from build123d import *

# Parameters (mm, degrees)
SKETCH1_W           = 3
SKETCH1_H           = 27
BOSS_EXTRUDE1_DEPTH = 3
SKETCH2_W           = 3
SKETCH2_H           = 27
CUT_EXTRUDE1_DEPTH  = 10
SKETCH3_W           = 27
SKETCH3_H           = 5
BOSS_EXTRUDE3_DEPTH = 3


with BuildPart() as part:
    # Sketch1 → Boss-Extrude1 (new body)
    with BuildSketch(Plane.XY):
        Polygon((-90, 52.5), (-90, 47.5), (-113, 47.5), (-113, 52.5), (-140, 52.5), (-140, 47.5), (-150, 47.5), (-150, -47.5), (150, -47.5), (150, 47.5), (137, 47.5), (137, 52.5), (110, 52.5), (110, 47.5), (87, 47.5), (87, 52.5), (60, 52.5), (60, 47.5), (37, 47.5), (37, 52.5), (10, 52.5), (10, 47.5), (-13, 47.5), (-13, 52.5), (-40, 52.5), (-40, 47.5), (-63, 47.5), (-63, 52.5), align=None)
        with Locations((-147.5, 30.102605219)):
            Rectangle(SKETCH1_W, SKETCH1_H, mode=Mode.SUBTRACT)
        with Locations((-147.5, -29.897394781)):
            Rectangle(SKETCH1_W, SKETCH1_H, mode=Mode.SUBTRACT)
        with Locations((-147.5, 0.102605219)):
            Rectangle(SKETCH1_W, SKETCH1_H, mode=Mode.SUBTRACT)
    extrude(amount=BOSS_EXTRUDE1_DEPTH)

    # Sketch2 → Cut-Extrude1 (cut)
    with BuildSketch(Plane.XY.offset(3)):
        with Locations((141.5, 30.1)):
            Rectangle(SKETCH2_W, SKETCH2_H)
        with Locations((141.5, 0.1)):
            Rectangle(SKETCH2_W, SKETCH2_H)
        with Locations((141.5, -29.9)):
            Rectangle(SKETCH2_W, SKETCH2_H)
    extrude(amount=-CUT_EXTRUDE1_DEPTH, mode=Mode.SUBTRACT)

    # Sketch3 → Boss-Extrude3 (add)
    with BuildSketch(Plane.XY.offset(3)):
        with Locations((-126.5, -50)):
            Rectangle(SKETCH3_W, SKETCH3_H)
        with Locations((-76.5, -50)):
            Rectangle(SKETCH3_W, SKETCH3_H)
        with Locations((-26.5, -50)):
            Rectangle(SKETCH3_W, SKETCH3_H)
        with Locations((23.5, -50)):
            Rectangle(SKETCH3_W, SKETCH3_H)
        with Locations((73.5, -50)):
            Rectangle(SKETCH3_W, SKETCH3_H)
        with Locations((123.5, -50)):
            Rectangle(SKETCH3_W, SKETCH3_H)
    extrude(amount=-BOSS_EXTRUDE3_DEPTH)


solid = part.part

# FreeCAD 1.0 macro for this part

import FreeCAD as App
import Part
import Sketcher

V = App.Vector
Q = App.Units.Quantity

doc = App.newDocument("Part")
params = doc.addObject("Spreadsheet::Sheet", "Params")
for row, (alias, value) in enumerate([
    ("sketch1_width", "23 mm"),
    ("sketch1_width2", "27 mm"),
    ("sketch1_width3", "10 mm"),
    ("sketch1_width4", "300 mm"),
    ("sketch1_width5", "3 mm"),
    ("pad1_length", "3 mm"),
    ("sketch2_width", "3 mm"),
    ("sketch2_height", "27 mm"),
    ("pocket1_length", "10 mm"),
    ("sketch3_width", "27 mm"),
    ("sketch3_height", "5 mm"),
    ("pad2_length", "3 mm"),
], start=1):
    params.set(f"A{row}", alias)
    params.set(f"B{row}", "=" + value)
    params.setAlias(f"B{row}", alias)

body = doc.addObject("PartDesign::Body", "Body")

# Sketch on XY plane
sketch1 = body.newObject("Sketcher::SketchObject", "Sketch")
sketch1.AttachmentSupport = (doc.getObject("XY_Plane"), [""])
sketch1.MapMode = "FlatFace"
sketch1.addGeometry(Part.LineSegment(V(-90, 52.5, 0), V(-90, 47.5, 0)), False)
sketch1.addGeometry(Part.LineSegment(V(-90, 47.5, 0), V(-113, 47.5, 0)), False)
sketch1.addGeometry(Part.LineSegment(V(-113, 47.5, 0), V(-113, 52.5, 0)), False)
sketch1.addGeometry(Part.LineSegment(V(-113, 52.5, 0), V(-140, 52.5, 0)), False)
sketch1.addGeometry(Part.LineSegment(V(-140, 52.5, 0), V(-140, 47.5, 0)), False)
sketch1.addGeometry(Part.LineSegment(V(-140, 47.5, 0), V(-150, 47.5, 0)), False)
sketch1.addGeometry(Part.LineSegment(V(-150, 47.5, 0), V(-150, -47.5, 0)), False)
sketch1.addGeometry(Part.LineSegment(V(-150, -47.5, 0), V(150, -47.5, 0)), False)
sketch1.addGeometry(Part.LineSegment(V(150, -47.5, 0), V(150, 47.5, 0)), False)
sketch1.addGeometry(Part.LineSegment(V(150, 47.5, 0), V(137, 47.5, 0)), False)
sketch1.addGeometry(Part.LineSegment(V(137, 47.5, 0), V(137, 52.5, 0)), False)
sketch1.addGeometry(Part.LineSegment(V(137, 52.5, 0), V(110, 52.5, 0)), False)
sketch1.addGeometry(Part.LineSegment(V(110, 52.5, 0), V(110, 47.5, 0)), False)
sketch1.addGeometry(Part.LineSegment(V(110, 47.5, 0), V(87, 47.5, 0)), False)
sketch1.addGeometry(Part.LineSegment(V(87, 47.5, 0), V(87, 52.5, 0)), False)
sketch1.addGeometry(Part.LineSegment(V(87, 52.5, 0), V(60, 52.5, 0)), False)
sketch1.addGeometry(Part.LineSegment(V(60, 52.5, 0), V(60, 47.5, 0)), False)
sketch1.addGeometry(Part.LineSegment(V(60, 47.5, 0), V(37, 47.5, 0)), False)
sketch1.addGeometry(Part.LineSegment(V(37, 47.5, 0), V(37, 52.5, 0)), False)
sketch1.addGeometry(Part.LineSegment(V(37, 52.5, 0), V(10, 52.5, 0)), False)
sketch1.addGeometry(Part.LineSegment(V(10, 52.5, 0), V(10, 47.5, 0)), False)
sketch1.addGeometry(Part.LineSegment(V(10, 47.5, 0), V(-13, 47.5, 0)), False)
sketch1.addGeometry(Part.LineSegment(V(-13, 47.5, 0), V(-13, 52.5, 0)), False)
sketch1.addGeometry(Part.LineSegment(V(-13, 52.5, 0), V(-40, 52.5, 0)), False)
sketch1.addGeometry(Part.LineSegment(V(-40, 52.5, 0), V(-40, 47.5, 0)), False)
sketch1.addGeometry(Part.LineSegment(V(-40, 47.5, 0), V(-63, 47.5, 0)), False)
sketch1.addGeometry(Part.LineSegment(V(-63, 47.5, 0), V(-63, 52.5, 0)), False)
sketch1.addGeometry(Part.LineSegment(V(-63, 52.5, 0), V(-90, 52.5, 0)), False)
sketch1.addGeometry(Part.LineSegment(V(-146, -43.397395, 0), V(-149, -43.397395, 0)), False)
sketch1.addGeometry(Part.LineSegment(V(-149, -43.397395, 0), V(-149, -16.397395, 0)), False)
sketch1.addGeometry(Part.LineSegment(V(-149, -16.397395, 0), V(-146, -16.397395, 0)), False)
sketch1.addGeometry(Part.LineSegment(V(-146, -16.397395, 0), V(-146, -43.397395, 0)), False)
sketch1.addGeometry(Part.LineSegment(V(-146, -13.397395, 0), V(-149, -13.397395, 0)), False)
sketch1.addGeometry(Part.LineSegment(V(-149, -13.397395, 0), V(-149, 13.602605, 0)), False)
sketch1.addGeometry(Part.LineSegment(V(-149, 13.602605, 0), V(-146, 13.602605, 0)), False)
sketch1.addGeometry(Part.LineSegment(V(-146, 13.602605, 0), V(-146, -13.397395, 0)), False)
sketch1.addGeometry(Part.LineSegment(V(-146, 16.602605, 0), V(-149, 16.602605, 0)), False)
sketch1.addGeometry(Part.LineSegment(V(-149, 16.602605, 0), V(-149, 43.602605, 0)), False)
sketch1.addGeometry(Part.LineSegment(V(-149, 43.602605, 0), V(-146, 43.602605, 0)), False)
sketch1.addGeometry(Part.LineSegment(V(-146, 43.602605, 0), V(-146, 16.602605, 0)), False)
sketch1.addConstraint(Sketcher.Constraint("Coincident", 0, 2, 1, 1))
sketch1.addConstraint(Sketcher.Constraint("Coincident", 1, 2, 2, 1))
sketch1.addConstraint(Sketcher.Constraint("Coincident", 2, 2, 3, 1))
sketch1.addConstraint(Sketcher.Constraint("Coincident", 3, 2, 4, 1))
sketch1.addConstraint(Sketcher.Constraint("Coincident", 4, 2, 5, 1))
sketch1.addConstraint(Sketcher.Constraint("Coincident", 5, 2, 6, 1))
sketch1.addConstraint(Sketcher.Constraint("Coincident", 6, 2, 7, 1))
sketch1.addConstraint(Sketcher.Constraint("Coincident", 7, 2, 8, 1))
sketch1.addConstraint(Sketcher.Constraint("Coincident", 8, 2, 9, 1))
sketch1.addConstraint(Sketcher.Constraint("Coincident", 9, 2, 10, 1))
sketch1.addConstraint(Sketcher.Constraint("Coincident", 10, 2, 11, 1))
sketch1.addConstraint(Sketcher.Constraint("Coincident", 11, 2, 12, 1))
sketch1.addConstraint(Sketcher.Constraint("Coincident", 12, 2, 13, 1))
sketch1.addConstraint(Sketcher.Constraint("Coincident", 13, 2, 14, 1))
sketch1.addConstraint(Sketcher.Constraint("Coincident", 14, 2, 15, 1))
sketch1.addConstraint(Sketcher.Constraint("Coincident", 15, 2, 16, 1))
sketch1.addConstraint(Sketcher.Constraint("Coincident", 16, 2, 17, 1))
sketch1.addConstraint(Sketcher.Constraint("Coincident", 17, 2, 18, 1))
sketch1.addConstraint(Sketcher.Constraint("Coincident", 18, 2, 19, 1))
sketch1.addConstraint(Sketcher.Constraint("Coincident", 19, 2, 20, 1))
sketch1.addConstraint(Sketcher.Constraint("Coincident", 20, 2, 21, 1))
sketch1.addConstraint(Sketcher.Constraint("Coincident", 21, 2, 22, 1))
sketch1.addConstraint(Sketcher.Constraint("Coincident", 22, 2, 23, 1))
sketch1.addConstraint(Sketcher.Constraint("Coincident", 23, 2, 24, 1))
sketch1.addConstraint(Sketcher.Constraint("Coincident", 24, 2, 25, 1))
sketch1.addConstraint(Sketcher.Constraint("Coincident", 25, 2, 26, 1))
sketch1.addConstraint(Sketcher.Constraint("Coincident", 26, 2, 27, 1))
sketch1.addConstraint(Sketcher.Constraint("Coincident", 27, 2, 0, 1))
sketch1.addConstraint(Sketcher.Constraint("Coincident", 28, 2, 29, 1))
sketch1.addConstraint(Sketcher.Constraint("Coincident", 29, 2, 30, 1))
sketch1.addConstraint(Sketcher.Constraint("Coincident", 30, 2, 31, 1))
sketch1.addConstraint(Sketcher.Constraint("Coincident", 31, 2, 28, 1))
sketch1.addConstraint(Sketcher.Constraint("Coincident", 32, 2, 33, 1))
sketch1.addConstraint(Sketcher.Constraint("Coincident", 33, 2, 34, 1))
sketch1.addConstraint(Sketcher.Constraint("Coincident", 34, 2, 35, 1))
sketch1.addConstraint(Sketcher.Constraint("Coincident", 35, 2, 32, 1))
sketch1.addConstraint(Sketcher.Constraint("Coincident", 36, 2, 37, 1))
sketch1.addConstraint(Sketcher.Constraint("Coincident", 37, 2, 38, 1))
sketch1.addConstraint(Sketcher.Constraint("Coincident", 38, 2, 39, 1))
sketch1.addConstraint(Sketcher.Constraint("Coincident", 39, 2, 36, 1))
sketch1.addConstraint(Sketcher.Constraint("Vertical", 0))
sketch1.addConstraint(Sketcher.Constraint("Horizontal", 1))
sketch1.addConstraint(Sketcher.Constraint("Vertical", 2))
sketch1.addConstraint(Sketcher.Constraint("Horizontal", 3))
sketch1.addConstraint(Sketcher.Constraint("Vertical", 4))
sketch1.addConstraint(Sketcher.Constraint("Horizontal", 5))
sketch1.addConstraint(Sketcher.Constraint("Vertical", 6))
sketch1.addConstraint(Sketcher.Constraint("Horizontal", 7))
sketch1.addConstraint(Sketcher.Constraint("Vertical", 8))
sketch1.addConstraint(Sketcher.Constraint("Horizontal", 9))
sketch1.addConstraint(Sketcher.Constraint("Vertical", 10))
sketch1.addConstraint(Sketcher.Constraint("Horizontal", 11))
sketch1.addConstraint(Sketcher.Constraint("Vertical", 12))
sketch1.addConstraint(Sketcher.Constraint("Horizontal", 13))
sketch1.addConstraint(Sketcher.Constraint("Vertical", 14))
sketch1.addConstraint(Sketcher.Constraint("Horizontal", 15))
sketch1.addConstraint(Sketcher.Constraint("Vertical", 16))
sketch1.addConstraint(Sketcher.Constraint("Horizontal", 17))
sketch1.addConstraint(Sketcher.Constraint("Vertical", 18))
sketch1.addConstraint(Sketcher.Constraint("Horizontal", 19))
sketch1.addConstraint(Sketcher.Constraint("Vertical", 20))
sketch1.addConstraint(Sketcher.Constraint("Horizontal", 21))
sketch1.addConstraint(Sketcher.Constraint("Vertical", 22))
sketch1.addConstraint(Sketcher.Constraint("Horizontal", 23))
sketch1.addConstraint(Sketcher.Constraint("Vertical", 24))
sketch1.addConstraint(Sketcher.Constraint("Horizontal", 25))
sketch1.addConstraint(Sketcher.Constraint("Vertical", 26))
sketch1.addConstraint(Sketcher.Constraint("Horizontal", 27))
sketch1.addConstraint(Sketcher.Constraint("Horizontal", 28))
sketch1.addConstraint(Sketcher.Constraint("Vertical", 29))
sketch1.addConstraint(Sketcher.Constraint("Horizontal", 30))
sketch1.addConstraint(Sketcher.Constraint("Vertical", 31))
sketch1.addConstraint(Sketcher.Constraint("Horizontal", 32))
sketch1.addConstraint(Sketcher.Constraint("Vertical", 33))
sketch1.addConstraint(Sketcher.Constraint("Horizontal", 34))
sketch1.addConstraint(Sketcher.Constraint("Vertical", 35))
sketch1.addConstraint(Sketcher.Constraint("Horizontal", 36))
sketch1.addConstraint(Sketcher.Constraint("Vertical", 37))
sketch1.addConstraint(Sketcher.Constraint("Horizontal", 38))
sketch1.addConstraint(Sketcher.Constraint("Vertical", 39))
sketch1.addConstraint(Sketcher.Constraint("Symmetric", 5, 2, 7, 2, -1, 1))
sketch1.addConstraint(Sketcher.Constraint("Horizontal", 1, 2, 4, 2))
sketch1.addConstraint(Sketcher.Constraint("Horizontal", 5, 2, 8, 2))
sketch1.addConstraint(Sketcher.Constraint("Horizontal", 3, 2, 10, 2))
sketch1.addConstraint(Sketcher.Constraint("Horizontal", 9, 2, 12, 2))
sketch1.addConstraint(Sketcher.Constraint("Horizontal", 11, 2, 14, 2))
sketch1.addConstraint(Sketcher.Constraint("Horizontal", 13, 2, 16, 2))
sketch1.addConstraint(Sketcher.Constraint("Horizontal", 15, 2, 18, 2))
sketch1.addConstraint(Sketcher.Constraint("Horizontal", 17, 2, 20, 2))
sketch1.addConstraint(Sketcher.Constraint("Horizontal", 19, 2, 22, 2))
sketch1.addConstraint(Sketcher.Constraint("Horizontal", 21, 2, 24, 2))
sketch1.addConstraint(Sketcher.Constraint("Horizontal", 23, 2, 26, 2))
sketch1.addConstraint(Sketcher.Constraint("Vertical", 29, 2, 32, 2))
sketch1.addConstraint(Sketcher.Constraint("Vertical", 31, 2, 34, 2))
sketch1.addConstraint(Sketcher.Constraint("Vertical", 33, 2, 36, 2))
sketch1.addConstraint(Sketcher.Constraint("Vertical", 35, 2, 38, 2))
sketch1.addConstraint(Sketcher.Constraint("Equal", 3, 11))
sketch1.addConstraint(Sketcher.Constraint("Equal", 1, 13))
sketch1.addConstraint(Sketcher.Constraint("Equal", 11, 15))
sketch1.addConstraint(Sketcher.Constraint("Equal", 13, 17))
sketch1.addConstraint(Sketcher.Constraint("Equal", 15, 19))
sketch1.addConstraint(Sketcher.Constraint("Equal", 17, 21))
sketch1.addConstraint(Sketcher.Constraint("Equal", 19, 23))
sketch1.addConstraint(Sketcher.Constraint("Equal", 21, 25))
sketch1.addConstraint(Sketcher.Constraint("Equal", 23, 27))
sketch1.addConstraint(Sketcher.Constraint("Equal", 27, 29))
sketch1.addConstraint(Sketcher.Constraint("Equal", 31, 33))
sketch1.addConstraint(Sketcher.Constraint("Equal", 35, 37))
sketch1.addConstraint(Sketcher.Constraint("DistanceX", 1, 2, 1, 1, Q("23 mm")))
sketch1.addConstraint(Sketcher.Constraint("DistanceX", 3, 2, 3, 1, Q("27 mm")))
sketch1.addConstraint(Sketcher.Constraint("DistanceX", 5, 2, 5, 1, Q("10 mm")))
sketch1.addConstraint(Sketcher.Constraint("DistanceX", 7, 1, 7, 2, Q("300 mm")))
sketch1.addConstraint(Sketcher.Constraint("DistanceX", 28, 2, 28, 1, Q("3 mm")))
sketch1.addConstraint(Sketcher.Constraint("DistanceY", 0, 2, 0, 1, Q("5 mm")))
sketch1.addConstraint(Sketcher.Constraint("DistanceY", 6, 2, 6, 1, Q("95 mm")))
sketch1.addConstraint(Sketcher.Constraint("DistanceX", 28, 2, -1, 1, Q("149 mm")))
sketch1.addConstraint(Sketcher.Constraint("DistanceY", 29, 2, 32, 2, Q("3 mm")))
sketch1.addConstraint(Sketcher.Constraint("DistanceY", 33, 2, 36, 2, Q("3 mm")))
sketch1.addConstraint(Sketcher.Constraint("DistanceY", 28, 2, -1, 1, Q("43.397395 mm")))
sketch1.setExpression("Constraints[108]", "Params.sketch1_width")
sketch1.setExpression("Constraints[109]", "Params.sketch1_width2")
sketch1.setExpression("Constraints[110]", "Params.sketch1_width3")
sketch1.setExpression("Constraints[111]", "Params.sketch1_width4")
sketch1.setExpression("Constraints[112]", "Params.sketch1_width5")
pad1 = body.newObject("PartDesign::Pad", "Pad")
pad1.Profile = sketch1
pad1.setExpression("Length", "Params.pad1_length")

# Sketch on XY plane
sketch2 = body.newObject("Sketcher::SketchObject", "Sketch001")
sketch2.AttachmentSupport = (doc.getObject("XY_Plane"), [""])
sketch2.MapMode = "FlatFace"
sketch2.AttachmentOffset = App.Placement(V(0, 0, 3), App.Rotation())
sketch2.addGeometry(Part.LineSegment(V(140, 43.6, 0), V(140, 16.6, 0)), False)
sketch2.addGeometry(Part.LineSegment(V(140, 16.6, 0), V(143, 16.6, 0)), False)
sketch2.addGeometry(Part.LineSegment(V(143, 16.6, 0), V(143, 43.6, 0)), False)
sketch2.addGeometry(Part.LineSegment(V(143, 43.6, 0), V(140, 43.6, 0)), False)
sketch2.addGeometry(Part.LineSegment(V(140, 13.6, 0), V(140, -13.4, 0)), False)
sketch2.addGeometry(Part.LineSegment(V(140, -13.4, 0), V(143, -13.4, 0)), False)
sketch2.addGeometry(Part.LineSegment(V(143, -13.4, 0), V(143, 13.6, 0)), False)
sketch2.addGeometry(Part.LineSegment(V(143, 13.6, 0), V(140, 13.6, 0)), False)
sketch2.addGeometry(Part.LineSegment(V(140, -16.4, 0), V(140, -43.4, 0)), False)
sketch2.addGeometry(Part.LineSegment(V(140, -43.4, 0), V(143, -43.4, 0)), False)
sketch2.addGeometry(Part.LineSegment(V(143, -43.4, 0), V(143, -16.4, 0)), False)
sketch2.addGeometry(Part.LineSegment(V(143, -16.4, 0), V(140, -16.4, 0)), False)
sketch2.addConstraint(Sketcher.Constraint("Coincident", 0, 2, 1, 1))
sketch2.addConstraint(Sketcher.Constraint("Coincident", 1, 2, 2, 1))
sketch2.addConstraint(Sketcher.Constraint("Coincident", 2, 2, 3, 1))
sketch2.addConstraint(Sketcher.Constraint("Coincident", 3, 2, 0, 1))
sketch2.addConstraint(Sketcher.Constraint("Coincident", 4, 2, 5, 1))
sketch2.addConstraint(Sketcher.Constraint("Coincident", 5, 2, 6, 1))
sketch2.addConstraint(Sketcher.Constraint("Coincident", 6, 2, 7, 1))
sketch2.addConstraint(Sketcher.Constraint("Coincident", 7, 2, 4, 1))
sketch2.addConstraint(Sketcher.Constraint("Coincident", 8, 2, 9, 1))
sketch2.addConstraint(Sketcher.Constraint("Coincident", 9, 2, 10, 1))
sketch2.addConstraint(Sketcher.Constraint("Coincident", 10, 2, 11, 1))
sketch2.addConstraint(Sketcher.Constraint("Coincident", 11, 2, 8, 1))
sketch2.addConstraint(Sketcher.Constraint("Vertical", 0))
sketch2.addConstraint(Sketcher.Constraint("Horizontal", 1))
sketch2.addConstraint(Sketcher.Constraint("Vertical", 2))
sketch2.addConstraint(Sketcher.Constraint("Horizontal", 3))
sketch2.addConstraint(Sketcher.Constraint("Vertical", 4))
sketch2.addConstraint(Sketcher.Constraint("Horizontal", 5))
sketch2.addConstraint(Sketcher.Constraint("Vertical", 6))
sketch2.addConstraint(Sketcher.Constraint("Horizontal", 7))
sketch2.addConstraint(Sketcher.Constraint("Vertical", 8))
sketch2.addConstraint(Sketcher.Constraint("Horizontal", 9))
sketch2.addConstraint(Sketcher.Constraint("Vertical", 10))
sketch2.addConstraint(Sketcher.Constraint("Horizontal", 11))
sketch2.addConstraint(Sketcher.Constraint("Vertical", 3, 2, 4, 2))
sketch2.addConstraint(Sketcher.Constraint("Vertical", 2, 2, 5, 2))
sketch2.addConstraint(Sketcher.Constraint("Vertical", 7, 2, 8, 2))
sketch2.addConstraint(Sketcher.Constraint("Vertical", 6, 2, 9, 2))
sketch2.addConstraint(Sketcher.Constraint("Equal", 2, 4))
sketch2.addConstraint(Sketcher.Constraint("Equal", 6, 8))
sketch2.addConstraint(Sketcher.Constraint("DistanceX", 1, 1, 1, 2, Q("3 mm")))
sketch2.addConstraint(Sketcher.Constraint("DistanceY", 0, 2, 0, 1, Q("27 mm")))
sketch2.addConstraint(Sketcher.Constraint("DistanceX", -1, 1, 0, 2, Q("140 mm")))
sketch2.addConstraint(Sketcher.Constraint("DistanceY", 4, 2, 0, 2, Q("30 mm")))
sketch2.addConstraint(Sketcher.Constraint("DistanceY", 8, 2, 4, 2, Q("30 mm")))
sketch2.addConstraint(Sketcher.Constraint("DistanceY", -1, 1, 0, 2, Q("16.6 mm")))
sketch2.setExpression("Constraints[30]", "Params.sketch2_width")
sketch2.setExpression("Constraints[31]", "Params.sketch2_height")
pocket1 = body.newObject("PartDesign::Pocket", "Pocket")
pocket1.Profile = sketch2
pocket1.setExpression("Length", "Params.pocket1_length")

# Sketch on XY plane
sketch3 = body.newObject("Sketcher::SketchObject", "Sketch002")
sketch3.AttachmentSupport = (doc.getObject("XY_Plane"), [""])
sketch3.MapMode = "FlatFace"
sketch3.AttachmentOffset = App.Placement(V(0, 0, 3), App.Rotation())
sketch3.addGeometry(Part.LineSegment(V(-140, -47.5, 0), V(-140, -52.5, 0)), False)
sketch3.addGeometry(Part.LineSegment(V(-140, -52.5, 0), V(-113, -52.5, 0)), False)
sketch3.addGeometry(Part.LineSegment(V(-113, -52.5, 0), V(-113, -47.5, 0)), False)
sketch3.addGeometry(Part.LineSegment(V(-113, -47.5, 0), V(-140, -47.5, 0)), False)
sketch3.addGeometry(Part.LineSegment(V(-90, -47.5, 0), V(-90, -52.5, 0)), False)
sketch3.addGeometry(Part.LineSegment(V(-90, -52.5, 0), V(-63, -52.5, 0)), False)
sketch3.addGeometry(Part.LineSegment(V(-63, -52.5, 0), V(-63, -47.5, 0)), False)
sketch3.addGeometry(Part.LineSegment(V(-63, -47.5, 0), V(-90, -47.5, 0)), False)
sketch3.addGeometry(Part.LineSegment(V(-40, -47.5, 0), V(-40, -52.5, 0)), False)
sketch3.addGeometry(Part.LineSegment(V(-40, -52.5, 0), V(-13, -52.5, 0)), False)
sketch3.addGeometry(Part.LineSegment(V(-13, -52.5, 0), V(-13, -47.5, 0)), False)
sketch3.addGeometry(Part.LineSegment(V(-13, -47.5, 0), V(-40, -47.5, 0)), False)
sketch3.addGeometry(Part.LineSegment(V(10, -47.5, 0), V(10, -52.5, 0)), False)
sketch3.addGeometry(Part.LineSegment(V(10, -52.5, 0), V(37, -52.5, 0)), False)
sketch3.addGeometry(Part.LineSegment(V(37, -52.5, 0), V(37, -47.5, 0)), False)
sketch3.addGeometry(Part.LineSegment(V(37, -47.5, 0), V(10, -47.5, 0)), False)
sketch3.addGeometry(Part.LineSegment(V(60, -47.5, 0), V(60, -52.5, 0)), False)
sketch3.addGeometry(Part.LineSegment(V(60, -52.5, 0), V(87, -52.5, 0)), False)
sketch3.addGeometry(Part.LineSegment(V(87, -52.5, 0), V(87, -47.5, 0)), False)
sketch3.addGeometry(Part.LineSegment(V(87, -47.5, 0), V(60, -47.5, 0)), False)
sketch3.addGeometry(Part.LineSegment(V(110, -47.5, 0), V(110, -52.5, 0)), False)
sketch3.addGeometry(Part.LineSegment(V(110, -52.5, 0), V(137, -52.5, 0)), False)
sketch3.addGeometry(Part.LineSegment(V(137, -52.5, 0), V(137, -47.5, 0)), False)
sketch3.addGeometry(Part.LineSegment(V(137, -47.5, 0), V(110, -47.5, 0)), False)
sketch3.addConstraint(Sketcher.Constraint("Coincident", 0, 2, 1, 1))
sketch3.addConstraint(Sketcher.Constraint("Coincident", 1, 2, 2, 1))
sketch3.addConstraint(Sketcher.Constraint("Coincident", 2, 2, 3, 1))
sketch3.addConstraint(Sketcher.Constraint("Coincident", 3, 2, 0, 1))
sketch3.addConstraint(Sketcher.Constraint("Coincident", 4, 2, 5, 1))
sketch3.addConstraint(Sketcher.Constraint("Coincident", 5, 2, 6, 1))
sketch3.addConstraint(Sketcher.Constraint("Coincident", 6, 2, 7, 1))
sketch3.addConstraint(Sketcher.Constraint("Coincident", 7, 2, 4, 1))
sketch3.addConstraint(Sketcher.Constraint("Coincident", 8, 2, 9, 1))
sketch3.addConstraint(Sketcher.Constraint("Coincident", 9, 2, 10, 1))
sketch3.addConstraint(Sketcher.Constraint("Coincident", 10, 2, 11, 1))
sketch3.addConstraint(Sketcher.Constraint("Coincident", 11, 2, 8, 1))
sketch3.addConstraint(Sketcher.Constraint("Coincident", 12, 2, 13, 1))
sketch3.addConstraint(Sketcher.Constraint("Coincident", 13, 2, 14, 1))
sketch3.addConstraint(Sketcher.Constraint("Coincident", 14, 2, 15, 1))
sketch3.addConstraint(Sketcher.Constraint("Coincident", 15, 2, 12, 1))
sketch3.addConstraint(Sketcher.Constraint("Coincident", 16, 2, 17, 1))
sketch3.addConstraint(Sketcher.Constraint("Coincident", 17, 2, 18, 1))
sketch3.addConstraint(Sketcher.Constraint("Coincident", 18, 2, 19, 1))
sketch3.addConstraint(Sketcher.Constraint("Coincident", 19, 2, 16, 1))
sketch3.addConstraint(Sketcher.Constraint("Coincident", 20, 2, 21, 1))
sketch3.addConstraint(Sketcher.Constraint("Coincident", 21, 2, 22, 1))
sketch3.addConstraint(Sketcher.Constraint("Coincident", 22, 2, 23, 1))
sketch3.addConstraint(Sketcher.Constraint("Coincident", 23, 2, 20, 1))
sketch3.addConstraint(Sketcher.Constraint("Vertical", 0))
sketch3.addConstraint(Sketcher.Constraint("Horizontal", 1))
sketch3.addConstraint(Sketcher.Constraint("Vertical", 2))
sketch3.addConstraint(Sketcher.Constraint("Horizontal", 3))
sketch3.addConstraint(Sketcher.Constraint("Vertical", 4))
sketch3.addConstraint(Sketcher.Constraint("Horizontal", 5))
sketch3.addConstraint(Sketcher.Constraint("Vertical", 6))
sketch3.addConstraint(Sketcher.Constraint("Horizontal", 7))
sketch3.addConstraint(Sketcher.Constraint("Vertical", 8))
sketch3.addConstraint(Sketcher.Constraint("Horizontal", 9))
sketch3.addConstraint(Sketcher.Constraint("Vertical", 10))
sketch3.addConstraint(Sketcher.Constraint("Horizontal", 11))
sketch3.addConstraint(Sketcher.Constraint("Vertical", 12))
sketch3.addConstraint(Sketcher.Constraint("Horizontal", 13))
sketch3.addConstraint(Sketcher.Constraint("Vertical", 14))
sketch3.addConstraint(Sketcher.Constraint("Horizontal", 15))
sketch3.addConstraint(Sketcher.Constraint("Vertical", 16))
sketch3.addConstraint(Sketcher.Constraint("Horizontal", 17))
sketch3.addConstraint(Sketcher.Constraint("Vertical", 18))
sketch3.addConstraint(Sketcher.Constraint("Horizontal", 19))
sketch3.addConstraint(Sketcher.Constraint("Vertical", 20))
sketch3.addConstraint(Sketcher.Constraint("Horizontal", 21))
sketch3.addConstraint(Sketcher.Constraint("Vertical", 22))
sketch3.addConstraint(Sketcher.Constraint("Horizontal", 23))
sketch3.addConstraint(Sketcher.Constraint("Horizontal", 1, 2, 4, 2))
sketch3.addConstraint(Sketcher.Constraint("Horizontal", 3, 2, 6, 2))
sketch3.addConstraint(Sketcher.Constraint("Horizontal", 5, 2, 8, 2))
sketch3.addConstraint(Sketcher.Constraint("Horizontal", 7, 2, 10, 2))
sketch3.addConstraint(Sketcher.Constraint("Horizontal", 9, 2, 12, 2))
sketch3.addConstraint(Sketcher.Constraint("Horizontal", 11, 2, 14, 2))
sketch3.addConstraint(Sketcher.Constraint("Horizontal", 13, 2, 16, 2))
sketch3.addConstraint(Sketcher.Constraint("Horizontal", 15, 2, 18, 2))
sketch3.addConstraint(Sketcher.Constraint("Horizontal", 17, 2, 20, 2))
sketch3.addConstraint(Sketcher.Constraint("Horizontal", 19, 2, 22, 2))
sketch3.addConstraint(Sketcher.Constraint("Equal", 3, 5))
sketch3.addConstraint(Sketcher.Constraint("Equal", 7, 9))
sketch3.addConstraint(Sketcher.Constraint("Equal", 11, 13))
sketch3.addConstraint(Sketcher.Constraint("Equal", 15, 17))
sketch3.addConstraint(Sketcher.Constraint("Equal", 19, 21))
sketch3.addConstraint(Sketcher.Constraint("DistanceX", 1, 1, 1, 2, Q("27 mm")))
sketch3.addConstraint(Sketcher.Constraint("DistanceY", 0, 2, 0, 1, Q("5 mm")))
sketch3.addConstraint(Sketcher.Constraint("DistanceX", 0, 2, -1, 1, Q("140 mm")))
sketch3.addConstraint(Sketcher.Constraint("DistanceX", 4, 2, -1, 1, Q("90 mm")))
sketch3.addConstraint(Sketcher.Constraint("DistanceX", 8, 2, -1, 1, Q("40 mm")))
sketch3.addConstraint(Sketcher.Constraint("DistanceX", -1, 1, 12, 2, Q("10 mm")))
sketch3.addConstraint(Sketcher.Constraint("DistanceX", -1, 1, 16, 2, Q("60 mm")))
sketch3.addConstraint(Sketcher.Constraint("DistanceX", -1, 1, 20, 2, Q("110 mm")))
sketch3.addConstraint(Sketcher.Constraint("DistanceY", 0, 2, -1, 1, Q("52.5 mm")))
sketch3.setExpression("Constraints[63]", "Params.sketch3_width")
sketch3.setExpression("Constraints[64]", "Params.sketch3_height")
pad2 = body.newObject("PartDesign::Pad", "Pad001")
pad2.Profile = sketch3
pad2.setExpression("Length", "Params.pad2_length")
pad2.Reversed = True

doc.recompute()
